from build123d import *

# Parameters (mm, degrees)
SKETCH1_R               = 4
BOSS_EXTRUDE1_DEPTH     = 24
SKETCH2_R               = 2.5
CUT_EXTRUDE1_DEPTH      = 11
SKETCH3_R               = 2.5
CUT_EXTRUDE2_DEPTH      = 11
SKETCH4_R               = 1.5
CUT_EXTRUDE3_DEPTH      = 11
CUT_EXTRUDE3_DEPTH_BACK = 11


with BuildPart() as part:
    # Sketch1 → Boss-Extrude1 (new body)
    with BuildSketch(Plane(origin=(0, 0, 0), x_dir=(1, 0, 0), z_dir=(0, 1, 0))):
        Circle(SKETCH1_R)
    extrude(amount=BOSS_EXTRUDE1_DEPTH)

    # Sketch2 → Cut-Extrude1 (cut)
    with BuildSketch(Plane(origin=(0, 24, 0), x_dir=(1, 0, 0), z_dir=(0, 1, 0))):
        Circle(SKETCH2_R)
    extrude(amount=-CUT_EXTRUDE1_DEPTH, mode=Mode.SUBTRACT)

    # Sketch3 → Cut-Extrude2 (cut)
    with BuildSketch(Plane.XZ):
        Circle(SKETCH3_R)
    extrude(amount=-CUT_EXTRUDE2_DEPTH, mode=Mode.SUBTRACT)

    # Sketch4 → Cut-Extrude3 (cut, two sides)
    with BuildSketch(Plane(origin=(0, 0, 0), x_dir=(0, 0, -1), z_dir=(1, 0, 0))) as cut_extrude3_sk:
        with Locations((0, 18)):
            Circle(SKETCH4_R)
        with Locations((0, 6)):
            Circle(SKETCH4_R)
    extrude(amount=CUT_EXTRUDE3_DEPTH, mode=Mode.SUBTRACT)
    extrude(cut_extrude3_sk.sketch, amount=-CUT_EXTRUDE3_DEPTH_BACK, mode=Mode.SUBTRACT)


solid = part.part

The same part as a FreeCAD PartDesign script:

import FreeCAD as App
import Part
import Sketcher

doc = App.newDocument("Part")
body = doc.addObject("PartDesign::Body", "Body")

sketch1 = doc.addObject("Sketcher::SketchObject", "Sketch")
body.addObject(sketch1)
sketch1.AttachmentSupport = (doc.XZ_Plane, [""])
sketch1.MapMode = "FlatFace"
sketch1.addGeometry(Part.Circle(App.Vector(0, 0, 0), App.Vector(0, 0, 1), 4), False)
sketch1.addConstraint(Sketcher.Constraint("Coincident", 0, 3, -1, 1))
sketch1.addConstraint(Sketcher.Constraint("Diameter", 0, 8.0))
pad1 = doc.addObject("PartDesign::Pad", "Pad")
body.addObject(pad1)
pad1.Profile = sketch1
pad1.Length = 24
pad1.Reversed = True

sketch2 = doc.addObject("Sketcher::SketchObject", "Sketch001")
body.addObject(sketch2)
sketch2.AttachmentSupport = (doc.XZ_Plane, [""])
sketch2.MapMode = "FlatFace"
sketch2.AttachmentOffset = App.Placement(App.Vector(0, 0, -24), App.Rotation())
sketch2.addGeometry(Part.Circle(App.Vector(0, 0, 0), App.Vector(0, 0, 1), 2.5), False)
sketch2.addConstraint(Sketcher.Constraint("Coincident", 0, 3, -1, 1))
sketch2.addConstraint(Sketcher.Constraint("Diameter", 0, 5.0))
pocket1 = doc.addObject("PartDesign::Pocket", "Pocket")
body.addObject(pocket1)
pocket1.Profile = sketch2
pocket1.Length = 11
pocket1.Reversed = True

sketch3 = doc.addObject("Sketcher::SketchObject", "Sketch002")
body.addObject(sketch3)
sketch3.AttachmentSupport = (doc.XZ_Plane, [""])
sketch3.MapMode = "FlatFace"
sketch3.addGeometry(Part.Circle(App.Vector(0, 0, 0), App.Vector(0, 0, 1), 2.5), False)
sketch3.addConstraint(Sketcher.Constraint("Coincident", 0, 3, -1, 1))
sketch3.addConstraint(Sketcher.Constraint("Diameter", 0, 5.0))
pocket2 = doc.addObject("PartDesign::Pocket", "Pocket001")
body.addObject(pocket2)
pocket2.Profile = sketch3
pocket2.Length = 11

sketch4 = doc.addObject("Sketcher::SketchObject", "Sketch003")
body.addObject(sketch4)
sketch4.AttachmentSupport = (doc.YZ_Plane, [""])
sketch4.MapMode = "FlatFace"
sketch4.addGeometry(Part.Circle(App.Vector(18, 0, 0), App.Vector(0, 0, 1), 1.5), False)
sketch4.addGeometry(Part.Circle(App.Vector(6, 0, 0), App.Vector(0, 0, 1), 1.5), False)
sketch4.addConstraint(Sketcher.Constraint("Equal", 0, 1))
sketch4.addConstraint(Sketcher.Constraint("PointOnObject", 0, 3, -1))
sketch4.addConstraint(Sketcher.Constraint("PointOnObject", 1, 3, -1))
sketch4.addConstraint(Sketcher.Constraint("Diameter", 0, 3.0))
sketch4.addConstraint(Sketcher.Constraint("DistanceX", -1, 1, 0, 3, 18.0))
sketch4.addConstraint(Sketcher.Constraint("DistanceX", -1, 1, 1, 3, 6.0))
pocket3 = doc.addObject("PartDesign::Pocket", "Pocket002")
body.addObject(pocket3)
pocket3.Profile = sketch4
pocket3.Type = "ThroughAll"
pocket3.Midplane = True

doc.recompute()
